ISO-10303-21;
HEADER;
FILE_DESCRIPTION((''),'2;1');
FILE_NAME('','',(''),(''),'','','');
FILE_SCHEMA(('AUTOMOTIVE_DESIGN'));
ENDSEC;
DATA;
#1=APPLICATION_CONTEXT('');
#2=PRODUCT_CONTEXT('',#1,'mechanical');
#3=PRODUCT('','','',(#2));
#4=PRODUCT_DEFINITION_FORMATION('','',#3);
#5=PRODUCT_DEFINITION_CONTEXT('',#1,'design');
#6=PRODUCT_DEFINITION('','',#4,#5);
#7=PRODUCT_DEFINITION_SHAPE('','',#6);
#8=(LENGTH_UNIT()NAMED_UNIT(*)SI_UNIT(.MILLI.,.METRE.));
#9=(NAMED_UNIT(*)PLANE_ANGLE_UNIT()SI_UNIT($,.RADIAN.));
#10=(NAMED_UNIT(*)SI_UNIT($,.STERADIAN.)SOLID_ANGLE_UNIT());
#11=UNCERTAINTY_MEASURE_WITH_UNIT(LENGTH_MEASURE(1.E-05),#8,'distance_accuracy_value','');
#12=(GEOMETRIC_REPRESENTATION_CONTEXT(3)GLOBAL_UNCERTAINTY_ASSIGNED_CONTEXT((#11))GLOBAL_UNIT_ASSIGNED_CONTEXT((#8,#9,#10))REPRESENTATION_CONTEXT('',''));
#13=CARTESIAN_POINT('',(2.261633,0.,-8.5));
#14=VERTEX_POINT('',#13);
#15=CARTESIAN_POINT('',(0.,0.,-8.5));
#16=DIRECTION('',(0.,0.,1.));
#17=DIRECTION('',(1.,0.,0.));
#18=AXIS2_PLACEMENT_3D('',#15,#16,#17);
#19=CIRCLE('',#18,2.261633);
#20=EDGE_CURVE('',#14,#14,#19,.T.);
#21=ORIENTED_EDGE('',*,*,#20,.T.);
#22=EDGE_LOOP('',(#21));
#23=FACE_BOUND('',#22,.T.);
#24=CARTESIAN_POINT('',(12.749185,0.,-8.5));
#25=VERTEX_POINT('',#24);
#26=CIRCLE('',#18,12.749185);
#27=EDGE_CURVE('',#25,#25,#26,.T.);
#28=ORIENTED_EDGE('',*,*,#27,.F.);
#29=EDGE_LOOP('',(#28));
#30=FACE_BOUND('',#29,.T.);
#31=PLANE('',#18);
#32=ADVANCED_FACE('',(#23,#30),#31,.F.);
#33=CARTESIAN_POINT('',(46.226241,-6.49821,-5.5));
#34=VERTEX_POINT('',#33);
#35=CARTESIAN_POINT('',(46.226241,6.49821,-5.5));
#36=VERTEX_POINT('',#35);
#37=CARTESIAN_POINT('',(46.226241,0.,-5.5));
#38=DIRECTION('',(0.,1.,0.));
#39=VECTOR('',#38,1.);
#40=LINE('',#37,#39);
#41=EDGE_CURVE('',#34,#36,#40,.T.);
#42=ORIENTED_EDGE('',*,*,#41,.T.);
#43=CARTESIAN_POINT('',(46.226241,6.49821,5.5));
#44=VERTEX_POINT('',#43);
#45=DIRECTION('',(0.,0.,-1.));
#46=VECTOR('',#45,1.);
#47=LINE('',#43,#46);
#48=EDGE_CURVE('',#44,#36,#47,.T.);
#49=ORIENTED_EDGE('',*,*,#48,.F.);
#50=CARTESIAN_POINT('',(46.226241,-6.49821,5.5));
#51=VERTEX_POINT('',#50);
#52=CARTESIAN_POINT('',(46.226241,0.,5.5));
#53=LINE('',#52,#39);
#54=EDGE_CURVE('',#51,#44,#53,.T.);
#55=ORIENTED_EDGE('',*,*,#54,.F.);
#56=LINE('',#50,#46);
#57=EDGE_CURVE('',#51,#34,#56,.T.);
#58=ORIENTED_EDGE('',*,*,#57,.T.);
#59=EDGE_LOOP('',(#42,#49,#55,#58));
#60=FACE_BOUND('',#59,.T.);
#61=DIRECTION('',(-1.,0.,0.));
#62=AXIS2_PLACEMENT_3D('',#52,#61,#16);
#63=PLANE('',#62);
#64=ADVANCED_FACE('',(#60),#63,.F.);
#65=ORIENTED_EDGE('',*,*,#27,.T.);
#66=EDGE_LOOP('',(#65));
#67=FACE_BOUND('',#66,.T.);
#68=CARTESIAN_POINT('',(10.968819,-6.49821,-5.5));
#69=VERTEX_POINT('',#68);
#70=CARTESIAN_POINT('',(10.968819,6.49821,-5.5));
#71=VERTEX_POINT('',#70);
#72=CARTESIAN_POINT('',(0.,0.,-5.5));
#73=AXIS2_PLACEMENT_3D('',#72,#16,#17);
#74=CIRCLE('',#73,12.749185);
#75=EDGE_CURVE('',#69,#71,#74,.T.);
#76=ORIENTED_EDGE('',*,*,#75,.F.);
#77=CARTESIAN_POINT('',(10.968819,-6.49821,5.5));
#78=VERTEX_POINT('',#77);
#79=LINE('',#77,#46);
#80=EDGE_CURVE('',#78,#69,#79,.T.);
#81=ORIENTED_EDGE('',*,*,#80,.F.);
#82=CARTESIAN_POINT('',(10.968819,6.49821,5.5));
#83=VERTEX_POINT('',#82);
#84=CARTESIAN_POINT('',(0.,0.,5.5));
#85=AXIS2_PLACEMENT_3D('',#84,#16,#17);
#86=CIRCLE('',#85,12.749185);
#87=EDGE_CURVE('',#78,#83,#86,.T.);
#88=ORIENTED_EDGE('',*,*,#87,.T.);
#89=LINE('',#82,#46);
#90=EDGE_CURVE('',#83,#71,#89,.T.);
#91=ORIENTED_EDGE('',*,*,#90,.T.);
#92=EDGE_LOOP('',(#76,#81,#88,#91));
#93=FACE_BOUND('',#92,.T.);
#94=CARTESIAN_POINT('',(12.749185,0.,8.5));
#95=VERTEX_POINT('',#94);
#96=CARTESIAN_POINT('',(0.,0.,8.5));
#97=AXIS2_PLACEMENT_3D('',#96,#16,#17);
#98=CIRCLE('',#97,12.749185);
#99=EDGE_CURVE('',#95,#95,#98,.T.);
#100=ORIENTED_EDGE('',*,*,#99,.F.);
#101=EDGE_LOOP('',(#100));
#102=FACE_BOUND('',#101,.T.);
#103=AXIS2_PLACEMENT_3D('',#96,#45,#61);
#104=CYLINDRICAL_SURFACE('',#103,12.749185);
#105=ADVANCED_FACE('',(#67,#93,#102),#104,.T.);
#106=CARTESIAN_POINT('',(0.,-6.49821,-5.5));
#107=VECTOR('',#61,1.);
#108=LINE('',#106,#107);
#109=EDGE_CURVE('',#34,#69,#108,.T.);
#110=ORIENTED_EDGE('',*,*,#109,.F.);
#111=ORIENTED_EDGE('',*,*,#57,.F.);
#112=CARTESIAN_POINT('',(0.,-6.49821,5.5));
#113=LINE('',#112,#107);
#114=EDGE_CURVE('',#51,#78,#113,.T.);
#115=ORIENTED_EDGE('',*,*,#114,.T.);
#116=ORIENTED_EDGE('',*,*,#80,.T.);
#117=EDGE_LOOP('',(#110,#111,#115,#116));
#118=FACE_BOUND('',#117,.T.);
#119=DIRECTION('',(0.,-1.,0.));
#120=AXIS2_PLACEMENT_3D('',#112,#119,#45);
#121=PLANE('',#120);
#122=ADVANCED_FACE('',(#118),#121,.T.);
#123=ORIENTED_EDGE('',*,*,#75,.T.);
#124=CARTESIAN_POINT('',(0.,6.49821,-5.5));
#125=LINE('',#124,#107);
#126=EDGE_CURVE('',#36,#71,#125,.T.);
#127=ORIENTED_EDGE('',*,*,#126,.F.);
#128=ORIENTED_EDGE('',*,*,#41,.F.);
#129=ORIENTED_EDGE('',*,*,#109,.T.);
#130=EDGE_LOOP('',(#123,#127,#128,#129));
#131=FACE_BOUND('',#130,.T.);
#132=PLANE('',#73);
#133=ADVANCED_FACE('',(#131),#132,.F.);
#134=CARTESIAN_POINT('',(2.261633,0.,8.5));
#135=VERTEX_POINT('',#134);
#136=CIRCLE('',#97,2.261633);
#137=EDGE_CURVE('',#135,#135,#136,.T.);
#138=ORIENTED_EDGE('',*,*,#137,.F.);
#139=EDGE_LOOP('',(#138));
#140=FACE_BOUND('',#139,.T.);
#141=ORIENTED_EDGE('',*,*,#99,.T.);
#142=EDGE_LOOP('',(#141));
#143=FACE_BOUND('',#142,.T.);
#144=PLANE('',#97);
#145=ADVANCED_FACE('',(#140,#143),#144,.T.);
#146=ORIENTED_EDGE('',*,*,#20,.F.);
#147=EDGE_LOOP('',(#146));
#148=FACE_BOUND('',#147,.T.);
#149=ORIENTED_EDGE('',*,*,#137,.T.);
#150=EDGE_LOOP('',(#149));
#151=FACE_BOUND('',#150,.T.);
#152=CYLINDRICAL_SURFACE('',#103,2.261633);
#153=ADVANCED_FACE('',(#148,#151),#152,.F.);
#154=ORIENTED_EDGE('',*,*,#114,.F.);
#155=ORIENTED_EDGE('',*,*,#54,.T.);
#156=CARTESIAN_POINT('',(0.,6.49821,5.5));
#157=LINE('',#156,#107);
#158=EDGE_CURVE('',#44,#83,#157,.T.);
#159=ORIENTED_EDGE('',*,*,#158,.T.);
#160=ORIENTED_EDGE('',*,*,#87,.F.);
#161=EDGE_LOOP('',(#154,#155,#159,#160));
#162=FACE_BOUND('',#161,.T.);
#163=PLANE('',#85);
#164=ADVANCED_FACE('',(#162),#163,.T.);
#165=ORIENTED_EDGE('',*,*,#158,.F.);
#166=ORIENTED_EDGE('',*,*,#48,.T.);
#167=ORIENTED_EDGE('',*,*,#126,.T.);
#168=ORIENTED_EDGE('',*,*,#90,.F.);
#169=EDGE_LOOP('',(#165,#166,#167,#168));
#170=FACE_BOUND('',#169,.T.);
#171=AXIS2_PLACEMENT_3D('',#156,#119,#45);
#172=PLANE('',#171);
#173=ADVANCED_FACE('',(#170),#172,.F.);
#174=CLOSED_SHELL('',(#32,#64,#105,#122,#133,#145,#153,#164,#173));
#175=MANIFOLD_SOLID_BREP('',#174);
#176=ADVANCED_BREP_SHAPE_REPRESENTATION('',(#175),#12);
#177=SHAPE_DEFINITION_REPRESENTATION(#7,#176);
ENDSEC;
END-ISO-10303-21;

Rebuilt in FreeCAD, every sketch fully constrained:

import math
import FreeCAD as App
import Part
import Sketcher

V = App.Vector

doc = App.newDocument("Part")
body = doc.addObject("PartDesign::Body", "Body")

# Sketch on XY plane
sketch1 = body.newObject("Sketcher::SketchObject", "Sketch")
sketch1.AttachmentSupport = (doc.getObject("XY_Plane"), [""])
sketch1.MapMode = "FlatFace"
sketch1.addGeometry(Part.LineSegment(V(11, -6, 0), V(46, -6, 0)), False)
sketch1.addGeometry(Part.LineSegment(V(46, -6, 0), V(46, 6, 0)), False)
sketch1.addGeometry(Part.LineSegment(V(46, 6, 0), V(11, 6, 0)), False)
sketch1.addGeometry(Part.ArcOfCircle(Part.Circle(V(0, 0, 0), V(0, 0, 1), 13), math.radians(0), math.radians(31)), False)
sketch1.addGeometry(Part.ArcOfCircle(Part.Circle(V(0, 0, 0), V(0, 0, 1), 13), math.radians(-31), math.radians(0)), False)
sketch1.addConstraint(Sketcher.Constraint("Coincident", 0, 2, 1, 1))
sketch1.addConstraint(Sketcher.Constraint("Coincident", 1, 2, 2, 1))
sketch1.addConstraint(Sketcher.Constraint("Coincident", 2, 2, 3, 2))
sketch1.addConstraint(Sketcher.Constraint("Tangent", 3, 1, 4, 2))
sketch1.addConstraint(Sketcher.Constraint("Coincident", 4, 1, 0, 1))
sketch1.addConstraint(Sketcher.Constraint("Horizontal", 0))
sketch1.addConstraint(Sketcher.Constraint("Vertical", 1))
sketch1.addConstraint(Sketcher.Constraint("Horizontal", 2))
sketch1.addConstraint(Sketcher.Constraint("Coincident", 3, 3, -1, 1))
sketch1.addConstraint(Sketcher.Constraint("Equal", 3, 4))
sketch1.addConstraint(Sketcher.Constraint("PointOnObject", 3, 1, -1))
sketch1.addConstraint(Sketcher.Constraint("Vertical", 2, 2, 4, 1))
sketch1.addConstraint(Sketcher.Constraint("Radius", 3, 12.749185))
sketch1.addConstraint(Sketcher.Constraint("DistanceX", 0, 1, 0, 2, 35.257422))
sketch1.addConstraint(Sketcher.Constraint("DistanceY", 1, 1, 1, 2, 12.996419))
pad1 = body.newObject("PartDesign::Pad", "Pad")
pad1.Profile = sketch1
pad1.Length = 11
pad1.Midplane = True

# Sketch on XY plane
sketch2 = body.newObject("Sketcher::SketchObject", "Sketch001")
sketch2.AttachmentSupport = (doc.getObject("XY_Plane"), [""])
sketch2.MapMode = "FlatFace"
sketch2.addGeometry(Part.Circle(V(0, 0, 0), V(0, 0, 1), 12.7), False)
sketch2.addGeometry(Part.Circle(V(0, 0, 0), V(0, 0, 1), 2.3), False)
sketch2.addConstraint(Sketcher.Constraint("Coincident", 0, 3, -1, 1))
sketch2.addConstraint(Sketcher.Constraint("Coincident", 1, 3, -1, 1))
sketch2.addConstraint(Sketcher.Constraint("Diameter", 0, 25.498371))
sketch2.addConstraint(Sketcher.Constraint("Diameter", 1, 4.523265))
pad2 = body.newObject("PartDesign::Pad", "Pad001")
pad2.Profile = sketch2
pad2.Length = 17
pad2.Midplane = True

doc.recompute()
